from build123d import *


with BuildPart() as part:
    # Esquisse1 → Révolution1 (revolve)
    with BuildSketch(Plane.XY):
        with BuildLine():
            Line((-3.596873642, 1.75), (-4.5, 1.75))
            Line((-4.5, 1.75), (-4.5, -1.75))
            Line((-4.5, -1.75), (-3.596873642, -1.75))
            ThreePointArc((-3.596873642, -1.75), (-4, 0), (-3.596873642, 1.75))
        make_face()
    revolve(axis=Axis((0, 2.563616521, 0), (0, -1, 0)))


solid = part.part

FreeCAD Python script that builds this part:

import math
import FreeCAD as App
import Part
import Sketcher
Q = App.Units.Quantity

doc = App.newDocument("Part")
body = doc.addObject("PartDesign::Body", "Body")

sketch1 = body.newObject("Sketcher::SketchObject", "Sketch")
sketch1.AttachmentSupport = (doc.getObject("XY_Plane"), [""])
sketch1.MapMode = "FlatFace"
sketch1.addGeometry(Part.LineSegment(App.Vector(-3.6, 1.8, 0), App.Vector(-4.5, 1.8, 0)), False)
sketch1.addGeometry(Part.LineSegment(App.Vector(-4.5, 1.8, 0), App.Vector(-4.5, -1.8, 0)), False)
sketch1.addGeometry(Part.LineSegment(App.Vector(-4.5, -1.8, 0), App.Vector(-3.6, -1.8, 0)), False)
sketch1.addGeometry(Part.ArcOfCircle(Part.Circle(App.Vector(0, 0, 0), App.Vector(0, 0, 1), 4), math.radians(154), math.radians(206)), False)
sketch1.addConstraint(Sketcher.Constraint("Coincident", 0, 2, 1, 1))
sketch1.addConstraint(Sketcher.Constraint("Coincident", 1, 2, 2, 1))
sketch1.addConstraint(Sketcher.Constraint("Coincident", 2, 2, 3, 2))
sketch1.addConstraint(Sketcher.Constraint("Coincident", 3, 1, 0, 1))
sketch1.addConstraint(Sketcher.Constraint("Horizontal", 0))
sketch1.addConstraint(Sketcher.Constraint("Vertical", 1))
sketch1.addConstraint(Sketcher.Constraint("Horizontal", 2))
sketch1.addConstraint(Sketcher.Constraint("Coincident", 3, 3, -1, 1))
sketch1.addConstraint(Sketcher.Constraint("Vertical", 2, 2, 3, 1))
sketch1.addConstraint(Sketcher.Constraint("Radius", 3, Q("4 mm")))
sketch1.addConstraint(Sketcher.Constraint("DistanceY", 1, 2, 1, 1, Q("3.5 mm")))
sketch1.addConstraint(Sketcher.Constraint("DistanceX", 0, 2, -1, 1, Q("4.5 mm")))
revolution = body.newObject("PartDesign::Revolution", "Revolution")
revolution.Profile = sketch1
revolution.ReferenceAxis = (sketch1, ["V_Axis"])
revolution.Angle = 360

doc.recompute()
